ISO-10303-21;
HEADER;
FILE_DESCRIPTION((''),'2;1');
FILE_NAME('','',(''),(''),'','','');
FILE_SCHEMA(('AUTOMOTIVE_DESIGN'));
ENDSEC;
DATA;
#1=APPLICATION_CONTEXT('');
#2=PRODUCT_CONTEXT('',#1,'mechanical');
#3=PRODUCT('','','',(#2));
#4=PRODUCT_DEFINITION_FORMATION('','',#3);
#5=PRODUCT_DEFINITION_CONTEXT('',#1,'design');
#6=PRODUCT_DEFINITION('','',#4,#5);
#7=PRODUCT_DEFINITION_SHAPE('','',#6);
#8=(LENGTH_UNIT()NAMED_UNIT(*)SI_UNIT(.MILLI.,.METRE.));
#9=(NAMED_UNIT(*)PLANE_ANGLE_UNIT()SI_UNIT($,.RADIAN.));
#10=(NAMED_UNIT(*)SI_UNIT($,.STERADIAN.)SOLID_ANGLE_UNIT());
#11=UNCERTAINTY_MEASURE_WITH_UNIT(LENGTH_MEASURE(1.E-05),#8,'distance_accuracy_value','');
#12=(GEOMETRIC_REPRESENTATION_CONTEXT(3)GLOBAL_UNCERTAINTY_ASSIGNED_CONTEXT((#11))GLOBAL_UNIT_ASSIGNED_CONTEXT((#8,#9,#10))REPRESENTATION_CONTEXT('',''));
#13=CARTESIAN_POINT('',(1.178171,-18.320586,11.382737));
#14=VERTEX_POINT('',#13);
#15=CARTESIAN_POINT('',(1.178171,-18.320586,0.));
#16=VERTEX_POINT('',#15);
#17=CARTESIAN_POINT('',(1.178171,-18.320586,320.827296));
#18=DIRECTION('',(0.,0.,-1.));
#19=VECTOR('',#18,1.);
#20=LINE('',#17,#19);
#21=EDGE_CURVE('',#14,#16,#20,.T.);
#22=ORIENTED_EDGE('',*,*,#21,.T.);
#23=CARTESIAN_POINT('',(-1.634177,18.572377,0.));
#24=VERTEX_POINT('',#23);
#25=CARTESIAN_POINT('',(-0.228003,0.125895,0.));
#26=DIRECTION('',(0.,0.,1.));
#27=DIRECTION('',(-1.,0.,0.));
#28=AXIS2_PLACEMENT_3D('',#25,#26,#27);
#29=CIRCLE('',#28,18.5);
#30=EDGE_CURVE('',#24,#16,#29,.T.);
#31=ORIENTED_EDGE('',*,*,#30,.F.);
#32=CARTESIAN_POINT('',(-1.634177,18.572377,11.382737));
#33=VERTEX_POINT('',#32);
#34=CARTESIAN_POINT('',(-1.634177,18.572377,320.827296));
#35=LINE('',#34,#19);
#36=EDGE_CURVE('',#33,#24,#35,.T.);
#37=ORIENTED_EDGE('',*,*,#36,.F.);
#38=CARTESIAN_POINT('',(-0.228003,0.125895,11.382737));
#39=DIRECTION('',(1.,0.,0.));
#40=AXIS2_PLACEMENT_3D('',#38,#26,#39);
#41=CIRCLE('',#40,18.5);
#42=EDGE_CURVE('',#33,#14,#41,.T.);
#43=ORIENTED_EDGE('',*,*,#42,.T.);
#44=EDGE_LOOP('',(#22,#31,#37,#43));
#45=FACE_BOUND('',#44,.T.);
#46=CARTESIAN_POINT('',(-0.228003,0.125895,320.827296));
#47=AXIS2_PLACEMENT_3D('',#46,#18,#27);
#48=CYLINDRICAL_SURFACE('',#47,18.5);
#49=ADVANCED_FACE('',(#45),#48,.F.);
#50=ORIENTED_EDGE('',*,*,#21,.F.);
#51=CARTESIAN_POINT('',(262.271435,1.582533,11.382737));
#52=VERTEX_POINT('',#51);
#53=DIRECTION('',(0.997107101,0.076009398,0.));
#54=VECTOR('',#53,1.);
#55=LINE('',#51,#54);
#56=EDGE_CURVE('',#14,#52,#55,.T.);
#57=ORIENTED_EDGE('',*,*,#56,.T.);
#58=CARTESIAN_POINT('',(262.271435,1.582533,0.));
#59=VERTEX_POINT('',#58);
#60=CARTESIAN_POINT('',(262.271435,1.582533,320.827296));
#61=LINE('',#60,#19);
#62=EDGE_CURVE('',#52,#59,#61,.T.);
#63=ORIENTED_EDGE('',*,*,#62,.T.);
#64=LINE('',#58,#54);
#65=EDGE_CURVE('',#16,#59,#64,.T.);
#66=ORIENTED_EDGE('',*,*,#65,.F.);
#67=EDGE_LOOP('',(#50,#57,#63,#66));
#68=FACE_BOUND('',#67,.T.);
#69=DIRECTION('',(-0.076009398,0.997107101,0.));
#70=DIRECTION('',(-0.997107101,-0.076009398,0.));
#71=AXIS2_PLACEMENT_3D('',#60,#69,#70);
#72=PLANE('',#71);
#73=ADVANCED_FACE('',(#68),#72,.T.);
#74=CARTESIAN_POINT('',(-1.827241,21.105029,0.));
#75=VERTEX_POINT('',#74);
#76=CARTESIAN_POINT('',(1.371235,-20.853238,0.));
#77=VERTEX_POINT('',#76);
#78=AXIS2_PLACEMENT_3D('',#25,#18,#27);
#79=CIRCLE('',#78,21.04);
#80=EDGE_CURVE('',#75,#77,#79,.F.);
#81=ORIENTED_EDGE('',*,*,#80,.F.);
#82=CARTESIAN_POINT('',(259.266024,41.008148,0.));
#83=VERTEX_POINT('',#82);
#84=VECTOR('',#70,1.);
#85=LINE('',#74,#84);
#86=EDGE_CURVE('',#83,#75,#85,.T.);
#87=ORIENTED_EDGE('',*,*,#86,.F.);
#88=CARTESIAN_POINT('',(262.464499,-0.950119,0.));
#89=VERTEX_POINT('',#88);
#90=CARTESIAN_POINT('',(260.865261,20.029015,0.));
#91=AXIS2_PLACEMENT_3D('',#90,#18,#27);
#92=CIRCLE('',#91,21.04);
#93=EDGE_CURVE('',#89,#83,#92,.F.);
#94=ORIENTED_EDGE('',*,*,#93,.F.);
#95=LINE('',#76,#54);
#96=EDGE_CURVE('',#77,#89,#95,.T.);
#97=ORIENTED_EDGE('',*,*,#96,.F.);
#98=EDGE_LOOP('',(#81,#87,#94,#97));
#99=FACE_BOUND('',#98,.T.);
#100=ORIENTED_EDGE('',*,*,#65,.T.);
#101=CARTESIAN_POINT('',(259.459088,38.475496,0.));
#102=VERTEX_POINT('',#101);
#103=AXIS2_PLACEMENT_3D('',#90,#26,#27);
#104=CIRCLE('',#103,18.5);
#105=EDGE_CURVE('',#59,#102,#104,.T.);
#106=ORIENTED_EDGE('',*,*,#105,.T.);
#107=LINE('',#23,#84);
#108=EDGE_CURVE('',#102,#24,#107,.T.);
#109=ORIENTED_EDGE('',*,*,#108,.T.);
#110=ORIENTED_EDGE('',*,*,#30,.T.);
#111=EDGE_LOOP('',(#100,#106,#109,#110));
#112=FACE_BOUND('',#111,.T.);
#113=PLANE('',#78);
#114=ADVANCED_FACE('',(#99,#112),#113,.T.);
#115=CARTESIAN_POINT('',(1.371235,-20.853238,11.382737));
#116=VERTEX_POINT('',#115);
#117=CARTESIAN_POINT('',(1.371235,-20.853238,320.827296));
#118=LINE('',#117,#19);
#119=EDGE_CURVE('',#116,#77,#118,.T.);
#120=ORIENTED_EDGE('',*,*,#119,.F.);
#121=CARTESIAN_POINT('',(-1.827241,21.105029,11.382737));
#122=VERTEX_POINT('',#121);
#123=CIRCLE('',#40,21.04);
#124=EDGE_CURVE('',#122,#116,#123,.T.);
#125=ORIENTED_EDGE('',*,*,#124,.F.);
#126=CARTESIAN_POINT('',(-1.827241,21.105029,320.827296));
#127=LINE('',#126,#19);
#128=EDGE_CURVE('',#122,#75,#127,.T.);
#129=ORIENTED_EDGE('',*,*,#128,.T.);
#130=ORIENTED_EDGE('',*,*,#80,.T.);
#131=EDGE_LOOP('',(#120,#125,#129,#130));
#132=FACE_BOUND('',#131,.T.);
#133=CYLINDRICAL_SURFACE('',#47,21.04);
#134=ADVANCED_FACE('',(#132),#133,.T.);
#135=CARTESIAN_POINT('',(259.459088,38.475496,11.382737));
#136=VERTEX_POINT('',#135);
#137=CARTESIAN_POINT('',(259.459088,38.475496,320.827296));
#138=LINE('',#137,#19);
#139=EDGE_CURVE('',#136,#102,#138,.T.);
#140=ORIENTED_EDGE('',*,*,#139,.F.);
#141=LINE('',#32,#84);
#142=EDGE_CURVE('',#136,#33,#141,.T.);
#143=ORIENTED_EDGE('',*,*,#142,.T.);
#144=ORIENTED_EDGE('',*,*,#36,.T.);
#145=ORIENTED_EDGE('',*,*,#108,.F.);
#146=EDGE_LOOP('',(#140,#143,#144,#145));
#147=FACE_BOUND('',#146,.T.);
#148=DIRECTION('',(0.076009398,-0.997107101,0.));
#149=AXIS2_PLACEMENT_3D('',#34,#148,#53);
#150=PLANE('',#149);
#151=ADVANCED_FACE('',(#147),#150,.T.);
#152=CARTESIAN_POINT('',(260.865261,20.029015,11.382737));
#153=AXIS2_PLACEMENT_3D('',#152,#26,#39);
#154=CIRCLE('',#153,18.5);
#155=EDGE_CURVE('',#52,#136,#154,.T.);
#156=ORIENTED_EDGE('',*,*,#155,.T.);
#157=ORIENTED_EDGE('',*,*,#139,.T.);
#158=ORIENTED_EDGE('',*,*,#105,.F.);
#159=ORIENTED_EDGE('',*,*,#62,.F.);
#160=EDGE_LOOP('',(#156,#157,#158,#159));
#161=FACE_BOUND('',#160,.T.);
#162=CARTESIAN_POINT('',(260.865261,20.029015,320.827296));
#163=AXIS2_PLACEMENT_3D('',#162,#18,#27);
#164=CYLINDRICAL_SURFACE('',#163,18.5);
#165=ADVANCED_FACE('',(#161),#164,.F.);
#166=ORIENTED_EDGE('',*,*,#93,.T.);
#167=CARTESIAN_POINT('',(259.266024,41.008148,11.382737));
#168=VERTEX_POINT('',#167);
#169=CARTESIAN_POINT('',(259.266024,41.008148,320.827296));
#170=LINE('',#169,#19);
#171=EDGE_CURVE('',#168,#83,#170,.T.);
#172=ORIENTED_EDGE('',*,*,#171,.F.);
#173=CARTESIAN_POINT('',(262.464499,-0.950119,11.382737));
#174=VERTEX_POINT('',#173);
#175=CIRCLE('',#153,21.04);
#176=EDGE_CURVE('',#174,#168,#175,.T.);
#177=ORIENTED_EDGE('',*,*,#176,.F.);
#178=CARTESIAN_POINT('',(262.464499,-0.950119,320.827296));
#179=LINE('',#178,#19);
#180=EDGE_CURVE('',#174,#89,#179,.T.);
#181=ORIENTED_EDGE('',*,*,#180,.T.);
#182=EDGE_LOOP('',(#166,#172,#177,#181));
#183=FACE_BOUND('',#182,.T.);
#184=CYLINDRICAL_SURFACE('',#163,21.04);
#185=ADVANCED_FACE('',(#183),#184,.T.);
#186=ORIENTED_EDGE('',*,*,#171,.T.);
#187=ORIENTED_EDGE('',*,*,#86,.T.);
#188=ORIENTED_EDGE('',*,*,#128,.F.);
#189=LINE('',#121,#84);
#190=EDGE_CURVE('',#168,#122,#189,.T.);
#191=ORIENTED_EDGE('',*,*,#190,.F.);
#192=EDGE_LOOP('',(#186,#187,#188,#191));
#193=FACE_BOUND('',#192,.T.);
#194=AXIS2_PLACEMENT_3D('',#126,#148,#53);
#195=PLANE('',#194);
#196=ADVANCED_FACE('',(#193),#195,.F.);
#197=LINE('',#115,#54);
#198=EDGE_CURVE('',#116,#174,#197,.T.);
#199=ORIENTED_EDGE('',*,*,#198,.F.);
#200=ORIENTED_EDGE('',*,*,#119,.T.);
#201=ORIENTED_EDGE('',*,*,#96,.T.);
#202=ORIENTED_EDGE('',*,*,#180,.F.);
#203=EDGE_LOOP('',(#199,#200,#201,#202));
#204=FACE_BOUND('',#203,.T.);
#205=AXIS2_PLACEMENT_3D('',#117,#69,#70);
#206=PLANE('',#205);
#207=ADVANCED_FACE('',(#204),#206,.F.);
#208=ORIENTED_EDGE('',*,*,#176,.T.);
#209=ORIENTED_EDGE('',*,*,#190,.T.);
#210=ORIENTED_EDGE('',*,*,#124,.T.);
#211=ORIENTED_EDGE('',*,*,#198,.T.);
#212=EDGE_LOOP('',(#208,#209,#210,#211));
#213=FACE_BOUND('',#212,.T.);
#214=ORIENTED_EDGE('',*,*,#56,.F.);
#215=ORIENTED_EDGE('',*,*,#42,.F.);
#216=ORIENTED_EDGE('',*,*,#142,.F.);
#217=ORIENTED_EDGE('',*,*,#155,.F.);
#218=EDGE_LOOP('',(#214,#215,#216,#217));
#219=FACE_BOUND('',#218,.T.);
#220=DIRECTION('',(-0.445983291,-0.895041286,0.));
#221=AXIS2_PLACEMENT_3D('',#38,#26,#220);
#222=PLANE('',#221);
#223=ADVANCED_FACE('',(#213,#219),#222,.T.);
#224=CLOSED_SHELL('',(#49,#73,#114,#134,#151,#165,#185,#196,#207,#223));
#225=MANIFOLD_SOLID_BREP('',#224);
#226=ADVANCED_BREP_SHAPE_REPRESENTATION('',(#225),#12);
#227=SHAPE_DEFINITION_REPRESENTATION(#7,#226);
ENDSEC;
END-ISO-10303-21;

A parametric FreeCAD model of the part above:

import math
import FreeCAD as App
import Part
import Sketcher
Q = App.Units.Quantity

doc = App.newDocument("Part")
body = doc.addObject("PartDesign::Body", "Body")

# Sketch on XY plane
sketch1 = body.newObject("Sketcher::SketchObject", "Sketch")
sketch1.AttachmentSupport = (doc.getObject("XY_Plane"), [""])
sketch1.MapMode = "FlatFace"
sketch1.addGeometry(Part.LineSegment(App.Vector(1, -21, 0), App.Vector(262, -1, 0)), False)
sketch1.addGeometry(Part.ArcOfCircle(Part.Circle(App.Vector(261, 20, 0), App.Vector(0, 0, 1), 21), math.radians(-86), math.radians(94)), False)
sketch1.addGeometry(Part.LineSegment(App.Vector(259, 41, 0), App.Vector(-2, 21, 0)), False)
sketch1.addGeometry(Part.ArcOfCircle(Part.Circle(App.Vector(0, 0, 0), App.Vector(0, 0, 1), 21), math.radians(94), math.radians(274)), False)
sketch1.addGeometry(Part.LineSegment(App.Vector(262, 2, 0), App.Vector(1, -18, 0)), False)
sketch1.addGeometry(Part.ArcOfCircle(Part.Circle(App.Vector(0, 0, 0), App.Vector(0, 0, 1), 18), math.radians(94), math.radians(274)), False)
sketch1.addGeometry(Part.LineSegment(App.Vector(-2, 19, 0), App.Vector(259, 38, 0)), False)
sketch1.addGeometry(Part.ArcOfCircle(Part.Circle(App.Vector(261, 20, 0), App.Vector(0, 0, 1), 18), math.radians(-86), math.radians(94)), False)
sketch1.addConstraint(Sketcher.Constraint("Tangent", 0, 2, 1, 1))
sketch1.addConstraint(Sketcher.Constraint("Tangent", 1, 2, 2, 1))
sketch1.addConstraint(Sketcher.Constraint("Tangent", 2, 2, 3, 1))
sketch1.addConstraint(Sketcher.Constraint("Tangent", 3, 2, 0, 1))
sketch1.addConstraint(Sketcher.Constraint("Tangent", 4, 2, 5, 2))
sketch1.addConstraint(Sketcher.Constraint("Tangent", 5, 1, 6, 1))
sketch1.addConstraint(Sketcher.Constraint("Tangent", 6, 2, 7, 2))
sketch1.addConstraint(Sketcher.Constraint("Tangent", 7, 1, 4, 1))
sketch1.addConstraint(Sketcher.Constraint("Coincident", 5, 3, 3, 3))
sketch1.addConstraint(Sketcher.Constraint("Coincident", 7, 3, 1, 3))
sketch1.addConstraint(Sketcher.Constraint("Equal", 1, 3))
sketch1.addConstraint(Sketcher.Constraint("Equal", 5, 7))
sketch1.addConstraint(Sketcher.Constraint("Radius", 5, Q("18.5 mm")))
sketch1.addConstraint(Sketcher.Constraint("Radius", 1, Q("21.04 mm")))
sketch1.addConstraint(Sketcher.Constraint("DistanceX", -1, 1, 0, 2, Q("262.464499 mm")))
sketch1.addConstraint(Sketcher.Constraint("DistanceX", -1, 1, 1, 3, Q("260.865261 mm")))
sketch1.addConstraint(Sketcher.Constraint("DistanceY", 0, 2, -1, 1, Q("0.950119 mm")))
sketch1.addConstraint(Sketcher.Constraint("DistanceX", 2, 2, -1, 1, Q("1.827241 mm")))
pad1 = body.newObject("PartDesign::Pad", "Pad")
pad1.Profile = sketch1
pad1.Length = 11.382737

doc.recompute()
